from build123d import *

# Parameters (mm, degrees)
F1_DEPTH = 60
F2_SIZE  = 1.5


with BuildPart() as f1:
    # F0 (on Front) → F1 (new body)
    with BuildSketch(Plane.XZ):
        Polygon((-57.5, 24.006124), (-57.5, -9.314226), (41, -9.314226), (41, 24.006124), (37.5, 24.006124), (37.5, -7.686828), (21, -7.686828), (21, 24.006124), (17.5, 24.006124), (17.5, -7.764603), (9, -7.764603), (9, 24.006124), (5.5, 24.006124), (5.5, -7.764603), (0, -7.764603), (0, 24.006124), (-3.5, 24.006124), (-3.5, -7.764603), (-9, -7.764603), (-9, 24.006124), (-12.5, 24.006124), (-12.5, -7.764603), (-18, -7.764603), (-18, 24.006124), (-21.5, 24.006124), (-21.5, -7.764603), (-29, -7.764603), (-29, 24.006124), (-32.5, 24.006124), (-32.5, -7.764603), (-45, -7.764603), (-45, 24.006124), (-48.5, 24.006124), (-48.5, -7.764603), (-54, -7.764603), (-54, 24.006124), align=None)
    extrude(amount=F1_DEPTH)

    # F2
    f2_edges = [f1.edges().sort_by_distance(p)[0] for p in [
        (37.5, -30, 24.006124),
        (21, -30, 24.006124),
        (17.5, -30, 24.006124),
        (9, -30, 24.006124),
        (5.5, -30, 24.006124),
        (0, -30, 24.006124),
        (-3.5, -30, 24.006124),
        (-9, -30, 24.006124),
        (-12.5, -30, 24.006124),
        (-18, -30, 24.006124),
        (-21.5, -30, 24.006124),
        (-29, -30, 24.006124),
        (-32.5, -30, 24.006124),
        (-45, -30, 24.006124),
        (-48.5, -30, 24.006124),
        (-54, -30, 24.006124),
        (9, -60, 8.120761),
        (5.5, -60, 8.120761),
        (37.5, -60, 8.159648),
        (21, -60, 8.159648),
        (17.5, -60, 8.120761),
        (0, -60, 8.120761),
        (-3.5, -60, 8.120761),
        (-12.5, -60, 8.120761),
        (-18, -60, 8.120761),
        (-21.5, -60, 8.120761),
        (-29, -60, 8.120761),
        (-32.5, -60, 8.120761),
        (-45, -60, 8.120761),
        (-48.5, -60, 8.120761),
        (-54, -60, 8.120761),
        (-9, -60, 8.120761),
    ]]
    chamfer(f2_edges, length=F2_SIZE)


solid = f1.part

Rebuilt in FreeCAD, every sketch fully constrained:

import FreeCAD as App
import Part
import Sketcher


def edges_at(feature, points):
    """Names of the edges that pass closest to the given points."""
    edges = feature.Shape.Edges
    near = lambda p: min(range(len(edges)), key=lambda i: edges[i].distToShape(Part.Vertex(*p))[0])
    return sorted({f"Edge{near(p) + 1}" for p in points})


def add_polygon(sketch, points):
    """Adds a closed chain of lines whose ends are joined by coincident constraints."""
    first, n = sketch.GeometryCount, len(points)
    for a, b in zip(points, points[1:] + points[:1]):
        sketch.addGeometry(Part.LineSegment(App.Vector(*a, 0), App.Vector(*b, 0)), False)
    for i in range(n):
        sketch.addConstraint(Sketcher.Constraint("Coincident", first + i, 2, first + (i + 1) % n, 1))

doc = App.newDocument("Part")
body = doc.addObject("PartDesign::Body", "Body")

# Sketch on XZ plane
sketch1 = body.newObject("Sketcher::SketchObject", "Sketch")
sketch1.AttachmentSupport = (doc.getObject("XZ_Plane"), [""])
sketch1.MapMode = "FlatFace"
add_polygon(sketch1, [(-57.5, 24.006124), (-57.5, -9.314226), (41, -9.314226), (41, 24.006124), (37.5, 24.006124), (37.5, -7.686828), (21, -7.686828), (21, 24.006124), (17.5, 24.006124), (17.5, -7.764603), (9, -7.764603), (9, 24.006124), (5.5, 24.006124), (5.5, -7.764603), (0, -7.764603), (0, 24.006124), (-3.5, 24.006124), (-3.5, -7.764603), (-9, -7.764603), (-9, 24.006124), (-12.5, 24.006124), (-12.5, -7.764603), (-18, -7.764603), (-18, 24.006124), (-21.5, 24.006124), (-21.5, -7.764603), (-29, -7.764603), (-29, 24.006124), (-32.5, 24.006124), (-32.5, -7.764603), (-45, -7.764603), (-45, 24.006124), (-48.5, 24.006124), (-48.5, -7.764603), (-54, -7.764603), (-54, 24.006124)])  # lines 0-35
sketch1.addConstraint([
    Sketcher.Constraint("Vertical", 0),
    Sketcher.Constraint("Horizontal", 1),
    Sketcher.Constraint("Vertical", 2),
    Sketcher.Constraint("Horizontal", 3),
    Sketcher.Constraint("Vertical", 4),
    Sketcher.Constraint("Horizontal", 5),
    Sketcher.Constraint("Vertical", 6),
    Sketcher.Constraint("Horizontal", 7),
    Sketcher.Constraint("Vertical", 8),
    Sketcher.Constraint("Horizontal", 9),
    Sketcher.Constraint("Vertical", 10),
    Sketcher.Constraint("Horizontal", 11),
    Sketcher.Constraint("Vertical", 12),
    Sketcher.Constraint("Horizontal", 13),
    Sketcher.Constraint("Vertical", 14),
    Sketcher.Constraint("Horizontal", 15),
    Sketcher.Constraint("Vertical", 16),
    Sketcher.Constraint("Horizontal", 17),
    Sketcher.Constraint("Vertical", 18),
    Sketcher.Constraint("Horizontal", 19),
    Sketcher.Constraint("Vertical", 20),
    Sketcher.Constraint("Horizontal", 21),
    Sketcher.Constraint("Vertical", 22),
    Sketcher.Constraint("Horizontal", 23),
    Sketcher.Constraint("Vertical", 24),
    Sketcher.Constraint("Horizontal", 25),
    Sketcher.Constraint("Vertical", 26),
    Sketcher.Constraint("Horizontal", 27),
    Sketcher.Constraint("Vertical", 28),
    Sketcher.Constraint("Horizontal", 29),
    Sketcher.Constraint("Vertical", 30),
    Sketcher.Constraint("Horizontal", 31),
    Sketcher.Constraint("Vertical", 32),
    Sketcher.Constraint("Horizontal", 33),
    Sketcher.Constraint("Vertical", 34),
    Sketcher.Constraint("Horizontal", 35),
    Sketcher.Constraint("Symmetric", 9, 2, 17, 2, -2),
    Sketcher.Constraint("PointOnObject", 13, 2, -2),
    Sketcher.Constraint("Horizontal", 3, 2, 6, 2),
    Sketcher.Constraint("Horizontal", 7, 2, 10, 2),
    Sketcher.Constraint("Horizontal", 9, 2, 12, 2),
    Sketcher.Constraint("Horizontal", 11, 2, 14, 2),
    Sketcher.Constraint("Horizontal", 15, 2, 18, 2),
    Sketcher.Constraint("Horizontal", 17, 2, 20, 2),
    Sketcher.Constraint("Horizontal", 19, 2, 22, 2),
    Sketcher.Constraint("Horizontal", 21, 2, 24, 2),
    Sketcher.Constraint("Horizontal", 23, 2, 26, 2),
    Sketcher.Constraint("Horizontal", 25, 2, 28, 2),
    Sketcher.Constraint("Horizontal", 27, 2, 30, 2),
    Sketcher.Constraint("Horizontal", 29, 2, 32, 2),
    Sketcher.Constraint("Horizontal", 31, 2, 34, 2),
    Sketcher.Constraint("Equal", 3, 7),
    Sketcher.Constraint("Equal", 7, 11),
    Sketcher.Constraint("Equal", 11, 15),
    Sketcher.Constraint("Equal", 15, 19),
    Sketcher.Constraint("Equal", 17, 21),
    Sketcher.Constraint("Equal", 19, 23),
    Sketcher.Constraint("Equal", 23, 27),
    Sketcher.Constraint("Equal", 27, 31),
    Sketcher.Constraint("Equal", 21, 33),
    Sketcher.Constraint("Equal", 31, 35),
    Sketcher.Constraint("DistanceX", 1, 1, 1, 2, 98.5),
    Sketcher.Constraint("DistanceX", 3, 2, 3, 1, 3.5),
    Sketcher.Constraint("DistanceX", 5, 2, 5, 1, 16.5),
    Sketcher.Constraint("DistanceX", 9, 2, 9, 1, 8.5),
    Sketcher.Constraint("DistanceX", 13, 2, 13, 1, 5.5),
    Sketcher.Constraint("DistanceX", 25, 2, 25, 1, 7.5),
    Sketcher.Constraint("DistanceY", 0, 2, 0, 1, 33.32035),
    Sketcher.Constraint("DistanceY", 4, 2, 4, 1, 31.692952),
    Sketcher.Constraint("DistanceY", 8, 2, 8, 1, 31.770727),
    Sketcher.Constraint("DistanceY", 4, 2, -1, 1, 7.686828),
])
pad1 = body.newObject("PartDesign::Pad", "Pad")
pad1.Profile = sketch1
pad1.Length = 60
doc.recompute()

chamfer = body.newObject("PartDesign::Chamfer", "Chamfer")
chamfer.Base = (pad1, edges_at(pad1, [
    (37.5, -30, 24.006),
    (21, -30, 24.006),
    (17.5, -30, 24.006),
    (9, -30, 24.006),
    (5.5, -30, 24.006),
    (0, -30, 24.006),
    (-3.5, -30, 24.006),
    (-9, -30, 24.006),
    (-12.5, -30, 24.006),
    (-18, -30, 24.006),
    (-21.5, -30, 24.006),
    (-29, -30, 24.006),
    (-32.5, -30, 24.006),
    (-45, -30, 24.006),
    (-48.5, -30, 24.006),
    (-54, -30, 24.006),
    (9, -60, 8.121),
    (5.5, -60, 8.121),
    (37.5, -60, 8.16),
    (21, -60, 8.16),
    (17.5, -60, 8.121),
    (0, -60, 8.121),
    (-3.5, -60, 8.121),
    (-12.5, -60, 8.121),
    (-18, -60, 8.121),
    (-21.5, -60, 8.121),
    (-29, -60, 8.121),
    (-32.5, -60, 8.121),
    (-45, -60, 8.121),
    (-48.5, -60, 8.121),
    (-54, -60, 8.121),
    (-9, -60, 8.121),
]))
chamfer.Size = 1.5

doc.recompute()
